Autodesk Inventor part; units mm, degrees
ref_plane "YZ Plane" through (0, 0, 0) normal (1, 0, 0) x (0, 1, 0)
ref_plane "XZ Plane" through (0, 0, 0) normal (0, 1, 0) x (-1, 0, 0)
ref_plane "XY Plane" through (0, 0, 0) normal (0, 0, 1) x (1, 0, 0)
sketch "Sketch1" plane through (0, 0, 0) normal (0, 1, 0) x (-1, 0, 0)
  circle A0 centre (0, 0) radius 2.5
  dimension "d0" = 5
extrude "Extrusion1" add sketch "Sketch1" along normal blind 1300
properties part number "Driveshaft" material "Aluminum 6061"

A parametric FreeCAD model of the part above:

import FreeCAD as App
import Part
import Sketcher

doc = App.newDocument("Part")
body = doc.addObject("PartDesign::Body", "Body")

# Sketch on XZ plane
sketch1 = body.newObject("Sketcher::SketchObject", "Sketch")
sketch1.AttachmentSupport = (doc.getObject("XZ_Plane"), [""])
sketch1.MapMode = "FlatFace"
sketch1.addGeometry(Part.Circle(App.Vector(0, 0, 0), App.Vector(0, 0, 1), 2.5), False)
sketch1.addConstraint(Sketcher.Constraint("Coincident", 0, 3, -1, 1))
sketch1.addConstraint(Sketcher.Constraint("Diameter", 0, 5.0))
pad1 = body.newObject("PartDesign::Pad", "Pad")
pad1.Profile = sketch1
pad1.Length = 1300
pad1.Reversed = True

doc.recompute()
